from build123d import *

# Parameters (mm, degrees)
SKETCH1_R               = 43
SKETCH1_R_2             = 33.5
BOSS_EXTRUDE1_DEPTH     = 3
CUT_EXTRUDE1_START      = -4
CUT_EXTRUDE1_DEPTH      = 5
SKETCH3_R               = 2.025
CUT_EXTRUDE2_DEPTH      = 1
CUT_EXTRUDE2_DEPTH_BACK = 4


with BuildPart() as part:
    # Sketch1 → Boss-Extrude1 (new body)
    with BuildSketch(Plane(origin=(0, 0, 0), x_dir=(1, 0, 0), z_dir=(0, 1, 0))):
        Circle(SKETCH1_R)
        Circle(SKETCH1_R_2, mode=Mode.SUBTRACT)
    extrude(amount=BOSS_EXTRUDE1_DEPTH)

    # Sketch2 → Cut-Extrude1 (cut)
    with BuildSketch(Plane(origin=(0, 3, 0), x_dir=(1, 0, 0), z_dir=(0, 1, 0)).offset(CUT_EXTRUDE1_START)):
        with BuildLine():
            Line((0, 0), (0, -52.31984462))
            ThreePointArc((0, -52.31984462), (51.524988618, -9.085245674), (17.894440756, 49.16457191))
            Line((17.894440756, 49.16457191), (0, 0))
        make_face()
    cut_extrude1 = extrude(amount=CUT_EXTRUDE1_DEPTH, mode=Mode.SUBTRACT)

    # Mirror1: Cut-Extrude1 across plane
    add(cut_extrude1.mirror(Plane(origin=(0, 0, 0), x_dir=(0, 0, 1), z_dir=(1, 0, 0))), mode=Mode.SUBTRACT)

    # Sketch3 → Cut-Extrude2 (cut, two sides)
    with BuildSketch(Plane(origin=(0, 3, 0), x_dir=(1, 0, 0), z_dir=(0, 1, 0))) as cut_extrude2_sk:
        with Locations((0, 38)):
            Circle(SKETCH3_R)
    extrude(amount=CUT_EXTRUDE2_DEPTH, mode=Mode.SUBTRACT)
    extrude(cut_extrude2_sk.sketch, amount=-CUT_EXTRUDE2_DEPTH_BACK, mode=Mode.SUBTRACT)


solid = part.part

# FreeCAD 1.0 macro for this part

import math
import FreeCAD as App
import Part
import Sketcher
Q = App.Units.Quantity

doc = App.newDocument("Part")
body = doc.addObject("PartDesign::Body", "Body")

sketch1 = doc.addObject("Sketcher::SketchObject", "Sketch")
body.addObject(sketch1)
sketch1.AttachmentSupport = (doc.XZ_Plane, [""])
sketch1.MapMode = "FlatFace"
sketch1.addGeometry([
    Part.Circle(App.Vector(0, 0, 0), App.Vector(0, 0, 1), 43),
    Part.Circle(App.Vector(0, 0, 0), App.Vector(0, 0, 1), 33.5),
], False)
sketch1.addConstraint([
    Sketcher.Constraint("Coincident", 0, 3, -1, 1),
    Sketcher.Constraint("Coincident", 1, 3, -1, 1),
    Sketcher.Constraint("Diameter", 0, Q("86 mm")),
    Sketcher.Constraint("Diameter", 1, Q("67 mm")),
])
pad1 = doc.addObject("PartDesign::Pad", "Pad")
body.addObject(pad1)
pad1.Profile = sketch1
pad1.Length = 3
pad1.Reversed = True

sketch2 = doc.addObject("Sketcher::SketchObject", "Sketch001")
body.addObject(sketch2)
sketch2.AttachmentSupport = (doc.XZ_Plane, [""])
sketch2.MapMode = "FlatFace"
sketch2.AttachmentOffset = App.Placement(App.Vector(0, 0, 1), App.Rotation())
sketch2.addGeometry([
    Part.LineSegment(App.Vector(0, 0, 0), App.Vector(0, 52.319845, 0)),
    Part.ArcOfCircle(Part.Circle(App.Vector(0, 0, 0), App.Vector(0, 0, 1), 52.319845), math.radians(-70), math.radians(90)),
    Part.LineSegment(App.Vector(17.894441, -49.164572, 0), App.Vector(0, 0, 0)),
], False)
sketch2.addConstraint([
    Sketcher.Constraint("Coincident", 0, 2, 1, 2),
    Sketcher.Constraint("Coincident", 1, 1, 2, 1),
    Sketcher.Constraint("Coincident", 2, 2, 0, 1),
    Sketcher.Constraint("Vertical", 0),
    Sketcher.Constraint("Coincident", 1, 3, -1, 1),
    Sketcher.Constraint("Coincident", 2, 2, -1, 1),
    Sketcher.Constraint("Angle", 2, Q("110 deg")),
    Sketcher.Constraint("Radius", 1, Q("52.319845 mm")),
])
pocket1 = doc.addObject("PartDesign::Pocket", "Pocket")
body.addObject(pocket1)
pocket1.Profile = sketch2
pocket1.Length = 5
doc.recompute()

mirrored = doc.addObject("PartDesign::Mirrored", "Mirrored")
body.addObject(mirrored)
mirrored.Originals = [pocket1]
mirrored.MirrorPlane = (doc.YZ_Plane, [""])
body.Tip = mirrored

sketch3 = doc.addObject("Sketcher::SketchObject", "Sketch002")
body.addObject(sketch3)
sketch3.AttachmentSupport = (doc.XZ_Plane, [""])
sketch3.MapMode = "FlatFace"
sketch3.AttachmentOffset = App.Placement(App.Vector(0, 0, -3), App.Rotation())
sketch3.addGeometry(Part.Circle(App.Vector(0, -38, 0), App.Vector(0, 0, 1), 2.025), False)
sketch3.addConstraint([
    Sketcher.Constraint("PointOnObject", 0, 3, -2),
    Sketcher.Constraint("Diameter", 0, Q("4.05 mm")),
    Sketcher.Constraint("DistanceY", 0, 3, -1, 1, Q("38 mm")),
])
pocket2 = doc.addObject("PartDesign::Pocket", "Pocket001")
body.addObject(pocket2)
pocket2.Profile = sketch3
pocket2.Type = "ThroughAll"
pocket2.Midplane = True

doc.recompute()
